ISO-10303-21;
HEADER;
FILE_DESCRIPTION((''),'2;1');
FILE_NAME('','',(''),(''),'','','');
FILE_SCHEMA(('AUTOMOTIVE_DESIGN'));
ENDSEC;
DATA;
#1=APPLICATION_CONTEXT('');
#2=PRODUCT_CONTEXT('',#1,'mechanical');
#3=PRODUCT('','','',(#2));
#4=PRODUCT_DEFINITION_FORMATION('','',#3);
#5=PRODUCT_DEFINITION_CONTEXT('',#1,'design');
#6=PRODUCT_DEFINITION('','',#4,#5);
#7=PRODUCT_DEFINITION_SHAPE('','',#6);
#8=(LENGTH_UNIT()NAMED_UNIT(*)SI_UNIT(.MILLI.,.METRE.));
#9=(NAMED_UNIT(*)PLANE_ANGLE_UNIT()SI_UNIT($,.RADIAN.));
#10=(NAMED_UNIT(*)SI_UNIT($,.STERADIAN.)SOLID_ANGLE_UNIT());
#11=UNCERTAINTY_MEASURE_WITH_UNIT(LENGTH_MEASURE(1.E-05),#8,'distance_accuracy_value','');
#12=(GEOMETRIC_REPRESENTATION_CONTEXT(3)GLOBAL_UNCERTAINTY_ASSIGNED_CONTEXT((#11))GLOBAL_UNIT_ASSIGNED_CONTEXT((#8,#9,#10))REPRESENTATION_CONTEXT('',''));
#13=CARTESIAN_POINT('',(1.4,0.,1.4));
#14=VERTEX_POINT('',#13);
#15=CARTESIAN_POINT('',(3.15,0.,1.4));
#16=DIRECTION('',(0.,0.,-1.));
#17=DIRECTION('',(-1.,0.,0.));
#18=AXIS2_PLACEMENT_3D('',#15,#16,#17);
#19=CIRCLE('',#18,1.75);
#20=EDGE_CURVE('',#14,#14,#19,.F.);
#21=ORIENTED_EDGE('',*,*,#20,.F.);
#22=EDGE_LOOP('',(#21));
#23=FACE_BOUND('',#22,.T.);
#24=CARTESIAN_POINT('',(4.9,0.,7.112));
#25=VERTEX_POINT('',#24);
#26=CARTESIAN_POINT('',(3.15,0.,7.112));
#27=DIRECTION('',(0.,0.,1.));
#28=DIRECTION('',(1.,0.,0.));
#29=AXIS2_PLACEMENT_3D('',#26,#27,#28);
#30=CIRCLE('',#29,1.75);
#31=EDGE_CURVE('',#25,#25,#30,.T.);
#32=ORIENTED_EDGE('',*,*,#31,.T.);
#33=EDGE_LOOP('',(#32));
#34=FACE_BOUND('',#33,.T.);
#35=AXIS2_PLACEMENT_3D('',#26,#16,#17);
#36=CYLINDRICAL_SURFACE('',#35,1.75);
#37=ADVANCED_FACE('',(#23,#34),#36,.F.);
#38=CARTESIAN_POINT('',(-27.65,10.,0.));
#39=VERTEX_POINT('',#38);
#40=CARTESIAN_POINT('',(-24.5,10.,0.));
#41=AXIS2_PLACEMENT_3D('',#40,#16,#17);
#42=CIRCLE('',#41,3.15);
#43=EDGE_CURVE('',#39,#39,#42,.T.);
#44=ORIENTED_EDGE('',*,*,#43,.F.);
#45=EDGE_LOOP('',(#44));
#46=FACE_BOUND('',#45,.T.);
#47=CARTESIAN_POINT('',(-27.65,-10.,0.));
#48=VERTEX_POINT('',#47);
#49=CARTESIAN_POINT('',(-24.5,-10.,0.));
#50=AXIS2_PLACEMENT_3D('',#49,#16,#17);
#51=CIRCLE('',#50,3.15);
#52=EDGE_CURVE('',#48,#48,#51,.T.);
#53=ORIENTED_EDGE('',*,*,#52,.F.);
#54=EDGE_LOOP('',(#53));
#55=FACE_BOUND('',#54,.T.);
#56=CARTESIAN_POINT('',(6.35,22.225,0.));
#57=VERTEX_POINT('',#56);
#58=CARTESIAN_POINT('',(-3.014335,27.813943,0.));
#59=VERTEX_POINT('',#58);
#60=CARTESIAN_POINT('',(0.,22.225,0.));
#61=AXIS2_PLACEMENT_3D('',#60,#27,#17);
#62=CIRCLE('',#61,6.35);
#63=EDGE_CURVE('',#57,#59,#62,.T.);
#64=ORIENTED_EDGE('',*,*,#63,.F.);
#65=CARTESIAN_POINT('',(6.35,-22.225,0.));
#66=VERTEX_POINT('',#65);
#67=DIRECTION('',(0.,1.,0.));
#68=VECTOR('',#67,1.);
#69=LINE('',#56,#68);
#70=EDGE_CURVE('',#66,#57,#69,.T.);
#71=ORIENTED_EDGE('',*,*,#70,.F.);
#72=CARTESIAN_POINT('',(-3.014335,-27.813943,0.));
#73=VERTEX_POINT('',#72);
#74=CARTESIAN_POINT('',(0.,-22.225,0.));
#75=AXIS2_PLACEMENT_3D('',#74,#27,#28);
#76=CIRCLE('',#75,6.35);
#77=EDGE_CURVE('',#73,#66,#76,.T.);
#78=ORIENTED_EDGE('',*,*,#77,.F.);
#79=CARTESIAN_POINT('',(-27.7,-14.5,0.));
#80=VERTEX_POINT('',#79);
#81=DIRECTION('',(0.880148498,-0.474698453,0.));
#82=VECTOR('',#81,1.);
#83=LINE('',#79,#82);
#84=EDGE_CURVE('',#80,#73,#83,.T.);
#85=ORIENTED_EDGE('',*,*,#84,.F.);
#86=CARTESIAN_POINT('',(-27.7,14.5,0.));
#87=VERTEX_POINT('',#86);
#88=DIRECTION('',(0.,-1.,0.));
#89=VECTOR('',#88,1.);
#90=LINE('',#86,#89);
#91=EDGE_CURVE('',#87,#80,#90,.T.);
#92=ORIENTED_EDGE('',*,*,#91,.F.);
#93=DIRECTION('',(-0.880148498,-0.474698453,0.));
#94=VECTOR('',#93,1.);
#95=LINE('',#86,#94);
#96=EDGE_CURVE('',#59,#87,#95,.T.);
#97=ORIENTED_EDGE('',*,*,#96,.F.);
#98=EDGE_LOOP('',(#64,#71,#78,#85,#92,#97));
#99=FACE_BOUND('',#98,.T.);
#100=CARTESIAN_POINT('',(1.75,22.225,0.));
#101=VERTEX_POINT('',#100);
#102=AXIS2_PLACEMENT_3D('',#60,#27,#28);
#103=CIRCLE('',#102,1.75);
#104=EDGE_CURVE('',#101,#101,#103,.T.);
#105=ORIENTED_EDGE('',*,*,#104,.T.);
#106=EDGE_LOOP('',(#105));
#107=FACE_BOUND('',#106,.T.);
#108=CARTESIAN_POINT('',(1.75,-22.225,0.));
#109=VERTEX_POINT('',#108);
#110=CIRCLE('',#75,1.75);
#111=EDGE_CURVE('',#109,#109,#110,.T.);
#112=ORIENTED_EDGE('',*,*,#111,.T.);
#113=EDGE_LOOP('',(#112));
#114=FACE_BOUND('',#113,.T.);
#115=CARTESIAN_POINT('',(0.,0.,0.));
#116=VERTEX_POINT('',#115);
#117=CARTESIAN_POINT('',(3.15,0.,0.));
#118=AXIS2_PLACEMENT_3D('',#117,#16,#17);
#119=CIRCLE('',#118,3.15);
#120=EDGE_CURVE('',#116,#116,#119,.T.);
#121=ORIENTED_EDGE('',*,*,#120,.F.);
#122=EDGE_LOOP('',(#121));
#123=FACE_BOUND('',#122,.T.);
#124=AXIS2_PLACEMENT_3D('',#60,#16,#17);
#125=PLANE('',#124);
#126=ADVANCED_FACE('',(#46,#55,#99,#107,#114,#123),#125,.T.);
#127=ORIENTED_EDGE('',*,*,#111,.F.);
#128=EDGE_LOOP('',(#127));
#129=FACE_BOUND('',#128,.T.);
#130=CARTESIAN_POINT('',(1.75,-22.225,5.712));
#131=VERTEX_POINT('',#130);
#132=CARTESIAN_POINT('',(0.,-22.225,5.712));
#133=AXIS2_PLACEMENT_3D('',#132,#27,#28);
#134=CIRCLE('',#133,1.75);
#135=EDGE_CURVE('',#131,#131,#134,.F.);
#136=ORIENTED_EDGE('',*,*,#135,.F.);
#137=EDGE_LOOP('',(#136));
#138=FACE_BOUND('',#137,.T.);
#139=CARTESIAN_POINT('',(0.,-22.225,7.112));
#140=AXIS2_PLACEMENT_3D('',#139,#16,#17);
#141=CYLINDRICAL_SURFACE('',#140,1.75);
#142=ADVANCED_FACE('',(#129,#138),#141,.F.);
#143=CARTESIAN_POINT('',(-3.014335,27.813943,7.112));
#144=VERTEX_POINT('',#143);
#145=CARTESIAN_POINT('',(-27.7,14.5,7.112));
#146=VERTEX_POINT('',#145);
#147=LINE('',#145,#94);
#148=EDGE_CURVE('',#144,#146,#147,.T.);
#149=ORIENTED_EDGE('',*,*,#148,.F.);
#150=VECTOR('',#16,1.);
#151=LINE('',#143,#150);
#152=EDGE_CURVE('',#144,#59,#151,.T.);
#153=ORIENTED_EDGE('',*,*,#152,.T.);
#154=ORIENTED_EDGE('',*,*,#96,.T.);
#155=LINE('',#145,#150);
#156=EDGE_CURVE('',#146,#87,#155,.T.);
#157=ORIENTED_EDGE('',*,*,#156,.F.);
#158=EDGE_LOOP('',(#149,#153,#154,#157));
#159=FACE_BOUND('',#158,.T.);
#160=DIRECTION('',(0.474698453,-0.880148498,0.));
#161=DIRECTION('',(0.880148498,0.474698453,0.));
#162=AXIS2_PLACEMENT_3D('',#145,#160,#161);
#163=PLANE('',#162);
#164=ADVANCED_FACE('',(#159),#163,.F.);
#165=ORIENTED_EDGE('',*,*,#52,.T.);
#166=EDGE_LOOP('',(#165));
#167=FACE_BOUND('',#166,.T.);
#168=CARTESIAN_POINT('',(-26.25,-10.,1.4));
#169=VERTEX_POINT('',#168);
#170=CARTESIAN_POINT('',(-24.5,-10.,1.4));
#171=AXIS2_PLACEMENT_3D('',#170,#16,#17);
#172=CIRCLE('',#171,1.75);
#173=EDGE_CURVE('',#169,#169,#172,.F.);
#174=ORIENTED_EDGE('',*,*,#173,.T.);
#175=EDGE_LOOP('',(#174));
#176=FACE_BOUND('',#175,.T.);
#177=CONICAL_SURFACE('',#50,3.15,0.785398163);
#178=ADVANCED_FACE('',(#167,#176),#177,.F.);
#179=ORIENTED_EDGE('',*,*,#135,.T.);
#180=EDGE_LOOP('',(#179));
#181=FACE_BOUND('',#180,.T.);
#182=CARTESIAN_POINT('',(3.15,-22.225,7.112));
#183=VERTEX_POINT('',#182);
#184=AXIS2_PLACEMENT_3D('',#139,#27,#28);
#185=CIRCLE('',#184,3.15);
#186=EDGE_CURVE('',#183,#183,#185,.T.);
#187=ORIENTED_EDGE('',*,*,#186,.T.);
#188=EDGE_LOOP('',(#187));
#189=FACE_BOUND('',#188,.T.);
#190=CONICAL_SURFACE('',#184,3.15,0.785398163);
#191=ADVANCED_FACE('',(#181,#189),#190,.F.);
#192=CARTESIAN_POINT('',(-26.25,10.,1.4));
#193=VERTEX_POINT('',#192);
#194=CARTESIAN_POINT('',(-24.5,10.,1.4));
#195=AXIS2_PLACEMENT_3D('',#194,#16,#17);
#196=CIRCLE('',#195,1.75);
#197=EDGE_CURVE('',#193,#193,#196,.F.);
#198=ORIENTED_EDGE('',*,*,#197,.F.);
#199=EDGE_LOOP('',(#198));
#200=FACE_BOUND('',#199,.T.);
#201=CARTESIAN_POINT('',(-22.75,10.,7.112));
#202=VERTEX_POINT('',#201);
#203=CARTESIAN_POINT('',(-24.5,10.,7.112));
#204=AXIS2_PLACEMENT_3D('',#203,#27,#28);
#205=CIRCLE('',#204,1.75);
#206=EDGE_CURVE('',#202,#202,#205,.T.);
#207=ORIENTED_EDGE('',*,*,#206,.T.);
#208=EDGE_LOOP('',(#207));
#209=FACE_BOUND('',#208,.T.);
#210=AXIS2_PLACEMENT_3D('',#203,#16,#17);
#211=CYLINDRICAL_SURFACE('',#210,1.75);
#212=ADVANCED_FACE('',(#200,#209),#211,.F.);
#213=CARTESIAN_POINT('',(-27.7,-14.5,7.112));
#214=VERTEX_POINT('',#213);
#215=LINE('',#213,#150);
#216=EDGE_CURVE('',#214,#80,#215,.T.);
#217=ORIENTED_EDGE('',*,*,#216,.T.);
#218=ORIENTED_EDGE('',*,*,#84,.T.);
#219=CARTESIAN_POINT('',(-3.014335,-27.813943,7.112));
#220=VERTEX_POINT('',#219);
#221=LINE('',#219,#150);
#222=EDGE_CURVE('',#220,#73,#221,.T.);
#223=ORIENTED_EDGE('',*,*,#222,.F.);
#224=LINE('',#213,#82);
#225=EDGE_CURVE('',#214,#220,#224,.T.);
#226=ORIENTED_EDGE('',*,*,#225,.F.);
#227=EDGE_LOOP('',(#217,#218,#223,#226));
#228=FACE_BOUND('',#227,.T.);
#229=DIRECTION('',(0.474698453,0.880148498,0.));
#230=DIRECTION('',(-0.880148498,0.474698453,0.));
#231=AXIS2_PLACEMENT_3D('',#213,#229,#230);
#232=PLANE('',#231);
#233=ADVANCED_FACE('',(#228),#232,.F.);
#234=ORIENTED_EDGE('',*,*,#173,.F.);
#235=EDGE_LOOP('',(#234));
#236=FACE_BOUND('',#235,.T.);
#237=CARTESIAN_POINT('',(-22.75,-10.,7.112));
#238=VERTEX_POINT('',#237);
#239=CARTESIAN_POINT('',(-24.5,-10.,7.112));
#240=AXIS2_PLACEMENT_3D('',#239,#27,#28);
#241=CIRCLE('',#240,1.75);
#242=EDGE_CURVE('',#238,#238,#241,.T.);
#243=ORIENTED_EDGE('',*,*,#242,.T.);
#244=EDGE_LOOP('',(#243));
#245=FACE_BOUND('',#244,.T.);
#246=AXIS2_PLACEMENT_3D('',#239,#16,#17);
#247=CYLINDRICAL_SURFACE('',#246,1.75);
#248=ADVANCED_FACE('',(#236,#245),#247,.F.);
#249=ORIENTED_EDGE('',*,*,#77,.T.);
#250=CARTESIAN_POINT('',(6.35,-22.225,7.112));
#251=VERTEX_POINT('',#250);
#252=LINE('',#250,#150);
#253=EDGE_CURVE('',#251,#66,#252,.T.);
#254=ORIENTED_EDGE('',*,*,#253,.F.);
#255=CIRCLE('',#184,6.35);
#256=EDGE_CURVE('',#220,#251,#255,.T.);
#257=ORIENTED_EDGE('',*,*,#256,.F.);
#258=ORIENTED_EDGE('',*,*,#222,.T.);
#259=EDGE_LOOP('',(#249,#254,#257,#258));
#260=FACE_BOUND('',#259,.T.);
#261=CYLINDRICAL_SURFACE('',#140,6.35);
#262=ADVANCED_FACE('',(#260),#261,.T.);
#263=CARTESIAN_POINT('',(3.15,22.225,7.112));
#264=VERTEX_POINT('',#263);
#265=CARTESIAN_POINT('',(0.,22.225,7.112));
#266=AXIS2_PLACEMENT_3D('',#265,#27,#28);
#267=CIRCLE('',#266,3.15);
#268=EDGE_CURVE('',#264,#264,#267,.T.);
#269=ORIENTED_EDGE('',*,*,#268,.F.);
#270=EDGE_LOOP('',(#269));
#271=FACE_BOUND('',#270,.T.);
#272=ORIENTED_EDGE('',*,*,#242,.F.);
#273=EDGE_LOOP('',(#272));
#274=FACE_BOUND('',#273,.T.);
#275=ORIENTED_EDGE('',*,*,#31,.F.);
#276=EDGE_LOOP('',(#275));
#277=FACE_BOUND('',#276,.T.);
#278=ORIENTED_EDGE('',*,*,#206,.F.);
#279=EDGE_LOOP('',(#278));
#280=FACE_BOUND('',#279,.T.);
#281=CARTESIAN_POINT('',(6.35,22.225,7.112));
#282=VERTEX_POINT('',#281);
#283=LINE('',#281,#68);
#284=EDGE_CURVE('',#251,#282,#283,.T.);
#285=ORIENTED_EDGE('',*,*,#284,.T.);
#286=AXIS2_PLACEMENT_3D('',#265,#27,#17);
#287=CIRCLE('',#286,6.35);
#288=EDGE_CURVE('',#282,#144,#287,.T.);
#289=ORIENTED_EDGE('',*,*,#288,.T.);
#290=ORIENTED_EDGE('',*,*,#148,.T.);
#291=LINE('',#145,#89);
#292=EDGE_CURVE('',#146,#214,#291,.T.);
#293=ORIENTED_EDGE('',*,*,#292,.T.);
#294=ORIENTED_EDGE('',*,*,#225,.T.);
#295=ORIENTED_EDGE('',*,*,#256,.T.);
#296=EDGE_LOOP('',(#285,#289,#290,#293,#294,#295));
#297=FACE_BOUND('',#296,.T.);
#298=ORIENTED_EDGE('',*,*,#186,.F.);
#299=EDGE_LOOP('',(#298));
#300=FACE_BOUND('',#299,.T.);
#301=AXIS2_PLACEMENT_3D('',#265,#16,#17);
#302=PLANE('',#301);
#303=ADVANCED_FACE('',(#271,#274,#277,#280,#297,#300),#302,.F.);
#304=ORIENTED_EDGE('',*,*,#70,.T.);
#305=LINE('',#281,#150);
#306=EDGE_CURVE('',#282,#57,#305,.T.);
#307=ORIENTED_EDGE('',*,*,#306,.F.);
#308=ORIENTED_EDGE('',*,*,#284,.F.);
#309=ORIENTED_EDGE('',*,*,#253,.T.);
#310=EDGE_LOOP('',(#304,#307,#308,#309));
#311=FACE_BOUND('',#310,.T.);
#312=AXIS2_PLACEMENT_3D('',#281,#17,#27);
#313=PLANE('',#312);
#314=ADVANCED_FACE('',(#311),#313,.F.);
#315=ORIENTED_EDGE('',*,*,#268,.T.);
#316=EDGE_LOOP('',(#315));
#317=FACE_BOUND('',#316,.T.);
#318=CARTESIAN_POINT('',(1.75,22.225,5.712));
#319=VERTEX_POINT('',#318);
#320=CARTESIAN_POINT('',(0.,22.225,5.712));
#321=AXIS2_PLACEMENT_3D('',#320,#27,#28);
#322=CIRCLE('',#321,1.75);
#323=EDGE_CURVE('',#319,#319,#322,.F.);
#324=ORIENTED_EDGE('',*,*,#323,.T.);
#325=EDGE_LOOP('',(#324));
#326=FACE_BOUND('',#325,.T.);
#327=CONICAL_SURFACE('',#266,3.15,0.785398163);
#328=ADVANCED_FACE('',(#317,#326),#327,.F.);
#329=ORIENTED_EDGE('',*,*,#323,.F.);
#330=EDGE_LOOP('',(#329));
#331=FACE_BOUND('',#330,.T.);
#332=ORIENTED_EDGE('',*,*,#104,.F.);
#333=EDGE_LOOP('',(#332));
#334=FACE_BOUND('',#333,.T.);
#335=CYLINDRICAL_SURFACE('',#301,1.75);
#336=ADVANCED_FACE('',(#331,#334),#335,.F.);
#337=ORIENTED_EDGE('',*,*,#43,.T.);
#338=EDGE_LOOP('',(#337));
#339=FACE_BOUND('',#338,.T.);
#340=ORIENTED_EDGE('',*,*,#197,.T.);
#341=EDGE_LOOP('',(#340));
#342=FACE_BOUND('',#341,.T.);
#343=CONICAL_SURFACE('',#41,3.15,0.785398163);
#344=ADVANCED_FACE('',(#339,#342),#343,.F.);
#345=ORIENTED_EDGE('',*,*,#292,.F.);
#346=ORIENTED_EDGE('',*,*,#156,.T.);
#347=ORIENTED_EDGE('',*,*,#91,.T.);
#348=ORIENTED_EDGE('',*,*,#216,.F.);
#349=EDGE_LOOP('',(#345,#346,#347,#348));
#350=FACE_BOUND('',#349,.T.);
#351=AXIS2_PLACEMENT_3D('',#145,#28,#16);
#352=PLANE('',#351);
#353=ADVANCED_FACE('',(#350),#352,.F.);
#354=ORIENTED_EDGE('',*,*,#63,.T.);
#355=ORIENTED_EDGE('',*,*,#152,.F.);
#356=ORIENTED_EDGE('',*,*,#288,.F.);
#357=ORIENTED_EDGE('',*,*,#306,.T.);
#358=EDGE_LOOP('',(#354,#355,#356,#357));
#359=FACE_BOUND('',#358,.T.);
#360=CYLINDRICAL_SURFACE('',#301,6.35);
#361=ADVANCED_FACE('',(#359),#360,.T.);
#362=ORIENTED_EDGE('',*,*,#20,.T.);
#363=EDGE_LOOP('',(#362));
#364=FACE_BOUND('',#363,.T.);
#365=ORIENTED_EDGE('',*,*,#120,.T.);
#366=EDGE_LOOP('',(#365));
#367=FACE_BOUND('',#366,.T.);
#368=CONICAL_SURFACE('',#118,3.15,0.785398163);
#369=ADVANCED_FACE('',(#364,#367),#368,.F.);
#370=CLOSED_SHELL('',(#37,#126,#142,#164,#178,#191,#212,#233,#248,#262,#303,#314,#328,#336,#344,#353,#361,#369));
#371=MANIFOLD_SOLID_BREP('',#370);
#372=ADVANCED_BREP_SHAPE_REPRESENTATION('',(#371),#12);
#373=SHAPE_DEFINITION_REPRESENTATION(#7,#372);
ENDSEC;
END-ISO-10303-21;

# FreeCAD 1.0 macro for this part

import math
import FreeCAD as App
import Part
import Sketcher
from FreeCAD import Vector
Q = App.Units.Quantity

doc = App.newDocument("Part")
body = doc.addObject("PartDesign::Body", "Body")

# Sketch on XY plane
sketch1 = body.newObject("Sketcher::SketchObject", "Sketch")
sketch1.AttachmentSupport = (doc.getObject("XY_Plane"), [""])
sketch1.MapMode = "FlatFace"
sketch1.addGeometry([
    Part.LineSegment(Vector(-27.7, 14.5, 0), Vector(-27.7, -14.5, 0)),  # 0
    Part.LineSegment(Vector(-27.7, -14.5, 0), Vector(-3.014335, -27.813943, 0)),  # 1
    Part.ArcOfCircle(Part.Circle(Vector(0, -22.225, 0), Vector(0, 0, 1), 6.35), math.radians(-118.339718), math.radians(0)),  # 2
    Part.LineSegment(Vector(6.35, -22.225, 0), Vector(6.35, 22.225, 0)),  # 3
    Part.ArcOfCircle(Part.Circle(Vector(0, 22.225, 0), Vector(0, 0, 1), 6.35), math.radians(0), math.radians(118.339718)),  # 4
    Part.LineSegment(Vector(-3.014335, 27.813943, 0), Vector(-27.7, 14.5, 0)),  # 5
    Part.Circle(Vector(-24.5, -10, 0), Vector(0, 0, 1), 1.75),  # 6
    Part.Circle(Vector(0, -22.225, 0), Vector(0, 0, 1), 1.75),  # 7
    Part.Circle(Vector(-24.5, 10, 0), Vector(0, 0, 1), 1.75),  # 8
    Part.Circle(Vector(3.15, 0, 0), Vector(0, 0, 1), 1.75),  # 9
    Part.Circle(Vector(0, 22.225, 0), Vector(0, 0, 1), 1.75),  # 10
], False)
sketch1.addConstraint([
    Sketcher.Constraint("Coincident", 0, 2, 1, 1),
    Sketcher.Constraint("Tangent", 1, 2, 2, 1),
    Sketcher.Constraint("Tangent", 2, 2, 3, 1),
    Sketcher.Constraint("Tangent", 3, 2, 4, 1),
    Sketcher.Constraint("Tangent", 4, 2, 5, 1),
    Sketcher.Constraint("Coincident", 5, 2, 0, 1),
    Sketcher.Constraint("Vertical", 0),
    Sketcher.Constraint("Vertical", 3),
    Sketcher.Constraint("Coincident", 7, 3, 2, 3),
    Sketcher.Constraint("Coincident", 10, 3, 4, 3),
    Sketcher.Constraint("Equal", 2, 4),
    Sketcher.Constraint("Equal", 6, 7),
    Sketcher.Constraint("Equal", 7, 8),
    Sketcher.Constraint("Equal", 8, 9),
    Sketcher.Constraint("Equal", 9, 10),
    Sketcher.Constraint("Symmetric", 2, 3, 4, 3, -1, 1),
    Sketcher.Constraint("Symmetric", 6, 3, 8, 3, -1),
    Sketcher.Constraint("PointOnObject", 9, 3, -1),
    Sketcher.Constraint("Vertical", 1, 2, 4, 2),
    Sketcher.Constraint("Diameter", 6, Q("3.5 mm")),
    Sketcher.Constraint("DistanceY", 0, 2, 0, 1, Q("29 mm")),
    Sketcher.Constraint("Radius", 2, Q("6.35 mm")),
    Sketcher.Constraint("DistanceY", 6, 3, -1, 1, Q("10 mm")),
    Sketcher.Constraint("DistanceY", 3, 1, 3, 2, Q("44.45 mm")),
    Sketcher.Constraint("DistanceX", 6, 3, -1, 1, Q("24.5 mm")),
    Sketcher.Constraint("DistanceX", 0, 2, -1, 1, Q("27.7 mm")),
    Sketcher.Constraint("DistanceX", 9, 3, 2, 2, Q("3.2 mm")),
])
pad1 = body.newObject("PartDesign::Pad", "Pad")
pad1.Profile = sketch1
pad1.Length = 7.112

# Sketch on XY plane
sketch2 = body.newObject("Sketcher::SketchObject", "Sketch001")
sketch2.AttachmentSupport = (doc.getObject("XY_Plane"), [""])
sketch2.MapMode = "FlatFace"
sketch2.addGeometry([
    Part.Circle(Vector(-24.5, 10, 0), Vector(0, 0, 1), 1.6),
    Part.Circle(Vector(-24.5, -10, 0), Vector(0, 0, 1), 1.6),
], False)
sketch2.addConstraint([
    Sketcher.Constraint("Equal", 0, 1),
    Sketcher.Constraint("Symmetric", 0, 3, 1, 3, -1),
    Sketcher.Constraint("Diameter", 0, Q("3.2 mm")),
    Sketcher.Constraint("DistanceY", -1, 1, 0, 3, Q("10 mm")),
    Sketcher.Constraint("DistanceX", 0, 3, -1, 1, Q("24.5 mm")),
])
doc.recompute()
hole = body.newObject("PartDesign::Hole", "Hole")
hole.Profile = sketch2
hole.ThreadType = "None"
hole.Diameter = 3.2
hole.DepthType = "ThroughAll"
hole.HoleCutType = "Countersink"
hole.HoleCutDiameter = 6.3
hole.HoleCutCountersinkAngle = 90
hole.Reversed = True

# Sketch on XY plane
sketch3 = body.newObject("Sketcher::SketchObject", "Sketch002")
sketch3.AttachmentSupport = (doc.getObject("XY_Plane"), [""])
sketch3.MapMode = "FlatFace"
sketch3.addGeometry(Part.Circle(Vector(3.15, 0, 0), Vector(0, 0, 1), 1.6), False)
sketch3.addConstraint([
    Sketcher.Constraint("PointOnObject", 0, 3, -1),
    Sketcher.Constraint("Diameter", 0, Q("3.2 mm")),
    Sketcher.Constraint("DistanceX", -1, 1, 0, 3, Q("3.15 mm")),
])
doc.recompute()
hole2 = body.newObject("PartDesign::Hole", "Hole001")
hole2.Profile = sketch3
hole2.ThreadType = "None"
hole2.Diameter = 3.2
hole2.DepthType = "ThroughAll"
hole2.HoleCutType = "Countersink"
hole2.HoleCutDiameter = 6.3
hole2.HoleCutCountersinkAngle = 90
hole2.Reversed = True

# Sketch on XY plane
sketch4 = body.newObject("Sketcher::SketchObject", "Sketch003")
sketch4.AttachmentSupport = (doc.getObject("XY_Plane"), [""])
sketch4.MapMode = "FlatFace"
sketch4.AttachmentOffset = App.Placement(Vector(0, 0, 7.112), App.Rotation())
sketch4.addGeometry([
    Part.Circle(Vector(0, 22.225, 0), Vector(0, 0, 1), 1.6),
    Part.Circle(Vector(0, -22.225, 0), Vector(0, 0, 1), 1.6),
], False)
sketch4.addConstraint([
    Sketcher.Constraint("Equal", 0, 1),
    Sketcher.Constraint("Symmetric", 0, 3, 1, 3, -1, 1),
    Sketcher.Constraint("PointOnObject", 0, 3, -2),
    Sketcher.Constraint("Diameter", 0, Q("3.2 mm")),
    Sketcher.Constraint("DistanceY", 1, 3, 0, 3, Q("44.45 mm")),
])
doc.recompute()
hole3 = body.newObject("PartDesign::Hole", "Hole002")
hole3.Profile = sketch4
hole3.ThreadType = "None"
hole3.Diameter = 3.2
hole3.DepthType = "ThroughAll"
hole3.HoleCutType = "Countersink"
hole3.HoleCutDiameter = 6.3
hole3.HoleCutCountersinkAngle = 90

doc.recompute()
